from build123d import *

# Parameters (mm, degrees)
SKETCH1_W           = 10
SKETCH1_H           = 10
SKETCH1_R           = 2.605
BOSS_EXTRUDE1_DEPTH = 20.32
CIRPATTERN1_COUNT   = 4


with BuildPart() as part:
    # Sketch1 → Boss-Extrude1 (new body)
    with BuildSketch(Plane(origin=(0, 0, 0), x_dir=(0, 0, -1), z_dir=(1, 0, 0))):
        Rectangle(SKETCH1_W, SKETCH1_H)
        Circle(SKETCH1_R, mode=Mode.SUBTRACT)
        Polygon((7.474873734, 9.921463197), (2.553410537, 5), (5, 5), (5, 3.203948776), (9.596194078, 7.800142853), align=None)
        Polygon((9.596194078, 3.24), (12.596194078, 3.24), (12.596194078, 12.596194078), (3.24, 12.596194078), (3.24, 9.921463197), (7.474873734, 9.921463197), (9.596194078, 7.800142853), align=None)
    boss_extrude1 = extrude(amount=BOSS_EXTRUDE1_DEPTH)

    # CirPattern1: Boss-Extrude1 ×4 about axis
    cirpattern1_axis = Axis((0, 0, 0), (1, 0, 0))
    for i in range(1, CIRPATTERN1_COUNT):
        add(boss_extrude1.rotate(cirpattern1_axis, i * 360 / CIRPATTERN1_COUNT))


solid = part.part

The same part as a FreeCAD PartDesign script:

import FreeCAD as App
import Part
import Sketcher
Q = App.Units.Quantity

doc = App.newDocument("Part")
body = doc.addObject("PartDesign::Body", "Body")

sketch1 = doc.addObject("Sketcher::SketchObject", "Sketch")
body.addObject(sketch1)
sketch1.AttachmentSupport = (doc.YZ_Plane, [""])
sketch1.MapMode = "FlatFace"
sketch1.addGeometry([
    Part.LineSegment(App.Vector(5, 5, 0), App.Vector(-5, 5, 0)),
    Part.LineSegment(App.Vector(-5, 5, 0), App.Vector(-5, -5, 0)),
    Part.LineSegment(App.Vector(-5, -5, 0), App.Vector(3.2, -5, 0)),
    Part.LineSegment(App.Vector(3.2, -5, 0), App.Vector(7.8, -9.6, 0)),
    Part.LineSegment(App.Vector(7.8, -9.6, 0), App.Vector(3.2, -9.6, 0)),
    Part.LineSegment(App.Vector(3.2, -9.6, 0), App.Vector(3.2, -12.6, 0)),
    Part.LineSegment(App.Vector(3.2, -12.6, 0), App.Vector(12.6, -12.6, 0)),
    Part.LineSegment(App.Vector(12.6, -12.6, 0), App.Vector(12.6, -3.2, 0)),
    Part.LineSegment(App.Vector(12.6, -3.2, 0), App.Vector(9.9, -3.2, 0)),
    Part.LineSegment(App.Vector(9.9, -3.2, 0), App.Vector(9.9, -7.5, 0)),
    Part.LineSegment(App.Vector(9.9, -7.5, 0), App.Vector(5, -2.6, 0)),
    Part.LineSegment(App.Vector(5, -2.6, 0), App.Vector(5, 5, 0)),
    Part.Circle(App.Vector(0, 0, 0), App.Vector(0, 0, 1), 2.6),
], False)
sketch1.addConstraint([
    Sketcher.Constraint("Coincident", 0, 2, 1, 1),
    Sketcher.Constraint("Coincident", 1, 2, 2, 1),
    Sketcher.Constraint("Coincident", 2, 2, 3, 1),
    Sketcher.Constraint("Coincident", 3, 2, 4, 1),
    Sketcher.Constraint("Coincident", 4, 2, 5, 1),
    Sketcher.Constraint("Coincident", 5, 2, 6, 1),
    Sketcher.Constraint("Coincident", 6, 2, 7, 1),
    Sketcher.Constraint("Coincident", 7, 2, 8, 1),
    Sketcher.Constraint("Coincident", 8, 2, 9, 1),
    Sketcher.Constraint("Coincident", 9, 2, 10, 1),
    Sketcher.Constraint("Coincident", 10, 2, 11, 1),
    Sketcher.Constraint("Coincident", 11, 2, 0, 1),
    Sketcher.Constraint("Horizontal", 0),
    Sketcher.Constraint("Vertical", 1),
    Sketcher.Constraint("Horizontal", 2),
    Sketcher.Constraint("Horizontal", 4),
    Sketcher.Constraint("Vertical", 5),
    Sketcher.Constraint("Horizontal", 6),
    Sketcher.Constraint("Vertical", 7),
    Sketcher.Constraint("Horizontal", 8),
    Sketcher.Constraint("Vertical", 9),
    Sketcher.Constraint("Vertical", 11),
    Sketcher.Constraint("Coincident", 12, 3, -1, 1),
    Sketcher.Constraint("Symmetric", 1, 2, 11, 2, -1, 1),
    Sketcher.Constraint("Parallel", 3, 10),
    Sketcher.Constraint("Equal", 0, 1),
    Sketcher.Constraint("Equal", 6, 7),
    Sketcher.Constraint("Diameter", 12, 5.21),
    Sketcher.Constraint("DistanceX", 0, 2, 0, 1, 10.0),
    Sketcher.Constraint("DistanceY", 5, 2, 5, 1, 3.0),
    Sketcher.Constraint("Angle", 3, Q("-45 deg")),
    Sketcher.Constraint("Distance", 3, 6.5),
    Sketcher.Constraint("Distance", 10, 6.96),
    Sketcher.Constraint("DistanceX", -1, 1, 4, 2, 3.24),
    Sketcher.Constraint("DistanceY", 7, 2, -1, 1, 3.24),
    Sketcher.Constraint("DistanceX", 2, 1, 2, 2, 8.203949),
    Sketcher.Constraint("DistanceY", 11, 1, 11, 2, 7.553411),
])
pad1 = doc.addObject("PartDesign::Pad", "Pad")
body.addObject(pad1)
pad1.Profile = sketch1
pad1.Length = 20.32
doc.recompute()

polarpattern = doc.addObject("PartDesign::PolarPattern", "PolarPattern")
body.addObject(polarpattern)
polarpattern.Originals = [pad1]
polarpattern.Axis = (doc.X_Axis, [""])
polarpattern.Angle = 360
polarpattern.Occurrences = 4
body.Tip = polarpattern

doc.recompute()
